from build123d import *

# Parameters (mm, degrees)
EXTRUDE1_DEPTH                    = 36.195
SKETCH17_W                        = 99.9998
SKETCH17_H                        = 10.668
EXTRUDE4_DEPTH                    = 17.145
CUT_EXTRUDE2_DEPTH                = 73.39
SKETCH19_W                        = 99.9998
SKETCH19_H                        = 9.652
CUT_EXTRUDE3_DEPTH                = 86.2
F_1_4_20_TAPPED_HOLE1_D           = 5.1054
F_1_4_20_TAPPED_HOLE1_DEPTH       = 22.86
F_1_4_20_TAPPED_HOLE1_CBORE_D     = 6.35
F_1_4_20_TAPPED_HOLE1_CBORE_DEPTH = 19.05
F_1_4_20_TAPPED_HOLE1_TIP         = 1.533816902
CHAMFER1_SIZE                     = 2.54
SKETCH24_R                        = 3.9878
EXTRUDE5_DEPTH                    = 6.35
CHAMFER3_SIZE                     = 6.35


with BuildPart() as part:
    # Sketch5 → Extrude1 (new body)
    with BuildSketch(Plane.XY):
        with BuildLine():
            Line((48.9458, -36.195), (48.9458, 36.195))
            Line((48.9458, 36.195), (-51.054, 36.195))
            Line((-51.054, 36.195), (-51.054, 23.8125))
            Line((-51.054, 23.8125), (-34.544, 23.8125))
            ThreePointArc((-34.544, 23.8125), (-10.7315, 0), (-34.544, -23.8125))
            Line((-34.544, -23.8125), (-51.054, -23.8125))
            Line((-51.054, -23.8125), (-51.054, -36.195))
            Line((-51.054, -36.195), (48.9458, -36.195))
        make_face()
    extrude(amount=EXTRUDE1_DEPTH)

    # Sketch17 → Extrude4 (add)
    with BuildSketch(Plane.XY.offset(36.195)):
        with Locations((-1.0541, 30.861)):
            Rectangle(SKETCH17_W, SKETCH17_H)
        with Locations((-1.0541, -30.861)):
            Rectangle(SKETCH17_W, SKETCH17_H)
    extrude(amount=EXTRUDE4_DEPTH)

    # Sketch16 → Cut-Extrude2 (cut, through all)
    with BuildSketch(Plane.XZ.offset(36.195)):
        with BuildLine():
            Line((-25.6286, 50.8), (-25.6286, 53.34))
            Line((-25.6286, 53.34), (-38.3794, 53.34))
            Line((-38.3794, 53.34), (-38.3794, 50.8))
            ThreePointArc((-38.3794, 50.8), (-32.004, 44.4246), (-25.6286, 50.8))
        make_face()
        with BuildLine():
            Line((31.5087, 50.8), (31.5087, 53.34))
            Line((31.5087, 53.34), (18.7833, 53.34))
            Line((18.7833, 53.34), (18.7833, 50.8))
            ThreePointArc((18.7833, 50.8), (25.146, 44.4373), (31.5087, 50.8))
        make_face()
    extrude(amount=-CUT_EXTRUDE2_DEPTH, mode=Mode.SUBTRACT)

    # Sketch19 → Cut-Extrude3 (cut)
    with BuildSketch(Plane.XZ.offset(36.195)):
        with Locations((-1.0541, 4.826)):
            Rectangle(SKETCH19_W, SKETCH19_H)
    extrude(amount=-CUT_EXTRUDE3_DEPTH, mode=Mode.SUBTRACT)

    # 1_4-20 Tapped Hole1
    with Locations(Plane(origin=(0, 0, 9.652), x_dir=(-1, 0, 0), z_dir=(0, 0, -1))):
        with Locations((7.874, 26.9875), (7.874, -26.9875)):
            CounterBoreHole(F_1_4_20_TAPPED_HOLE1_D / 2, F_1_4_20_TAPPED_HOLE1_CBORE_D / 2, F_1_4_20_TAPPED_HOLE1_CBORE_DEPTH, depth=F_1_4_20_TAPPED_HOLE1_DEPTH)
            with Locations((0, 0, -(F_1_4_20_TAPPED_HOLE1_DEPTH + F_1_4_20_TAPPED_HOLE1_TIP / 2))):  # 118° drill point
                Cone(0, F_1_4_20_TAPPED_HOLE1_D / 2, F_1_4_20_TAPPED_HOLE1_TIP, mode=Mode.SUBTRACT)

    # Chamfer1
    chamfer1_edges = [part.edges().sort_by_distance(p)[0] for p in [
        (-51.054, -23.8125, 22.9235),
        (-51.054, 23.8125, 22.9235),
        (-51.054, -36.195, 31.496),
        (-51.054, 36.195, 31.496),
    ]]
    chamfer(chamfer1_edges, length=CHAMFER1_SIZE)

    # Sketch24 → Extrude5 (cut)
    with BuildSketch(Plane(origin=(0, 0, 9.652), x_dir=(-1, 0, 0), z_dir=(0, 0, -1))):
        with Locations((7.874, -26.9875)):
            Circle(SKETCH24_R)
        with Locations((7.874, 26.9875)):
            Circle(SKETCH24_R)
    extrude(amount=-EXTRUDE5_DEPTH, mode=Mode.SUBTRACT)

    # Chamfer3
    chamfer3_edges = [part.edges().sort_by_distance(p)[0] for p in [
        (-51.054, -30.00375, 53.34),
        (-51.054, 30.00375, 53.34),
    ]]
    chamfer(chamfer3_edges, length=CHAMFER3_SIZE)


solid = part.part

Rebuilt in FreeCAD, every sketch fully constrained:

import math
import FreeCAD as App
import Part
import Sketcher

V = App.Vector
Q = App.Units.Quantity


def edges_at(feature, points):
    """Names of the edges that pass closest to the given points."""
    edges = feature.Shape.Edges
    near = lambda p: min(range(len(edges)), key=lambda i: edges[i].distToShape(Part.Vertex(*p))[0])
    return sorted({f"Edge{near(p) + 1}" for p in points})


def add_polygon(sketch, points):
    """Adds a closed chain of lines whose ends are joined by coincident constraints."""
    first, n = sketch.GeometryCount, len(points)
    for a, b in zip(points, points[1:] + points[:1]):
        sketch.addGeometry(Part.LineSegment(App.Vector(*a, 0), App.Vector(*b, 0)), False)
    for i in range(n):
        sketch.addConstraint(Sketcher.Constraint("Coincident", first + i, 2, first + (i + 1) % n, 1))

doc = App.newDocument("Part")
params = doc.addObject("Spreadsheet::Sheet", "Params")
for row, (alias, value) in enumerate([
    ("sketch1_radius", "0.9375 in"),
    ("sketch1_width", "0.65 in"),
    ("sketch1_height", "2.85 in"),
    ("sketch1_width2", "3.937 in"),
    ("pad1_length", "1.425 in"),
    ("sketch2_height", "0.42 in"),
    ("sketch2_width", "3.937 in"),
    ("pad2_length", "0.675 in"),
    ("sketch3_height", "0.1 in"),
    ("sketch3_radius", "0.251 in"),
    ("sketch4_height", "0.38 in"),
    ("sketch4_width", "3.937 in"),
    ("pocket2_length", "86.2 mm"),
    ("sketch5_diameter", "0.201 in"),
    ("hole_diameter", "0.201 in"),
    ("hole_depth", "0.9 in"),
    ("hole_cbore_diameter", "0.25 in"),
    ("hole_cbore_depth", "0.75 in"),
    ("chamfer_size", "0.1 in"),
    ("sketch6_diameter", "0.314 in"),
    ("pocket3_length", "0.25 in"),
    ("chamfer2_size", "0.25 in"),
], start=1):
    params.set(f"A{row}", alias)
    params.set(f"B{row}", "=" + value)
    params.setAlias(f"B{row}", alias)

body = doc.addObject("PartDesign::Body", "Body")

sketch1 = body.newObject("Sketcher::SketchObject", "Sketch")
sketch1.AttachmentSupport = (doc.getObject("XY_Plane"), [""])
sketch1.MapMode = "FlatFace"
sketch1.addGeometry([
    Part.LineSegment(V(49, -36, 0), V(49, 36, 0)),
    Part.LineSegment(V(49, 36, 0), V(-51, 36, 0)),
    Part.LineSegment(V(-51, 36, 0), V(-51, 24, 0)),
    Part.LineSegment(V(-51, 24, 0), V(-35, 24, 0)),
    Part.ArcOfCircle(Part.Circle(V(-35, 0, 0), V(0, 0, 1), 24), math.radians(-90), math.radians(90)),
    Part.LineSegment(V(-35, -24, 0), V(-51, -24, 0)),
    Part.LineSegment(V(-51, -24, 0), V(-51, -36, 0)),
    Part.LineSegment(V(-51, -36, 0), V(49, -36, 0)),
], False)
sketch1.addConstraint([
    Sketcher.Constraint("Coincident", 0, 2, 1, 1),
    Sketcher.Constraint("Coincident", 1, 2, 2, 1),
    Sketcher.Constraint("Coincident", 2, 2, 3, 1),
    Sketcher.Constraint("Tangent", 3, 2, 4, 2),
    Sketcher.Constraint("Tangent", 4, 1, 5, 1),
    Sketcher.Constraint("Coincident", 5, 2, 6, 1),
    Sketcher.Constraint("Coincident", 6, 2, 7, 1),
    Sketcher.Constraint("Coincident", 7, 2, 0, 1),
    Sketcher.Constraint("Vertical", 0),
    Sketcher.Constraint("Horizontal", 1),
    Sketcher.Constraint("Vertical", 2),
    Sketcher.Constraint("Horizontal", 3),
    Sketcher.Constraint("Horizontal", 5),
    Sketcher.Constraint("Vertical", 6),
    Sketcher.Constraint("Horizontal", 7),
    Sketcher.Constraint("Symmetric", 2, 2, 5, 2, -1),
    Sketcher.Constraint("Equal", 2, 6),
    Sketcher.Constraint("Radius", 4, Q("0.9375 in")),
    Sketcher.Constraint("DistanceX", 3, 1, 3, 2, Q("0.65 in")),
    Sketcher.Constraint("DistanceY", 0, 1, 0, 2, Q("2.85 in")),
    Sketcher.Constraint("DistanceX", 1, 2, 1, 1, Q("3.937 in")),
    Sketcher.Constraint("DistanceX", 4, 3, -1, 1, Q("1.36 in")),
])
sketch1.setExpression("Constraints[17]", "Params.sketch1_radius")
sketch1.setExpression("Constraints[18]", "Params.sketch1_width")
sketch1.setExpression("Constraints[19]", "Params.sketch1_height")
sketch1.setExpression("Constraints[20]", "Params.sketch1_width2")
pad1 = body.newObject("PartDesign::Pad", "Pad")
pad1.Profile = sketch1
pad1.setExpression("Length", "Params.pad1_length")

sketch2 = body.newObject("Sketcher::SketchObject", "Sketch001")
sketch2.AttachmentSupport = (doc.getObject("XY_Plane"), [""])
sketch2.MapMode = "FlatFace"
sketch2.AttachmentOffset = App.Placement(V(0, 0, 1.425 * 25.4), App.Rotation())
add_polygon(sketch2, [(-51, 36), (-51, 26), (49, 26), (49, 36)])
add_polygon(sketch2, [(-51, -26), (-51, -36), (49, -36), (49, -26)])
sketch2.addConstraint([
    Sketcher.Constraint("Vertical", 0),
    Sketcher.Constraint("Horizontal", 1),
    Sketcher.Constraint("Vertical", 2),
    Sketcher.Constraint("Horizontal", 3),
    Sketcher.Constraint("Vertical", 4),
    Sketcher.Constraint("Horizontal", 5),
    Sketcher.Constraint("Vertical", 6),
    Sketcher.Constraint("Horizontal", 7),
    Sketcher.Constraint("Symmetric", 3, 2, 4, 2, -1),
    Sketcher.Constraint("Symmetric", 1, 2, 6, 2, -1),
    Sketcher.Constraint("DistanceY", 0, 2, 0, 1, Q("0.42 in")),
    Sketcher.Constraint("DistanceX", 1, 1, 1, 2, Q("3.937 in")),
    Sketcher.Constraint("DistanceX", 0, 2, -1, 1, Q("2.01 in")),
    Sketcher.Constraint("DistanceY", 4, 2, 0, 2, Q("2.43 in")),
])
sketch2.setExpression("Constraints[18]", "Params.sketch2_height")
sketch2.setExpression("Constraints[19]", "Params.sketch2_width")
pad2 = body.newObject("PartDesign::Pad", "Pad001")
pad2.Profile = sketch2
pad2.setExpression("Length", "Params.pad2_length")

sketch3 = body.newObject("Sketcher::SketchObject", "Sketch002")
sketch3.AttachmentSupport = (doc.getObject("XZ_Plane"), [""])
sketch3.MapMode = "FlatFace"
sketch3.AttachmentOffset = App.Placement(V(0, 0, 1.425 * 25.4), App.Rotation())
sketch3.addGeometry([
    Part.LineSegment(V(-25.6, 50.8, 0), V(-25.6, 53.3, 0)),
    Part.LineSegment(V(-25.6, 53.3, 0), V(-38.4, 53.3, 0)),
    Part.LineSegment(V(-38.4, 53.3, 0), V(-38.4, 50.8, 0)),
    Part.ArcOfCircle(Part.Circle(V(-32, 50.8, 0), V(0, 0, 1), 6.4), math.radians(180), math.radians(360)),
    Part.LineSegment(V(31.5, 50.8, 0), V(31.5, 53.3, 0)),
    Part.LineSegment(V(31.5, 53.3, 0), V(18.8, 53.3, 0)),
    Part.LineSegment(V(18.8, 53.3, 0), V(18.8, 50.8, 0)),
    Part.ArcOfCircle(Part.Circle(V(25.1, 50.8, 0), V(0, 0, 1), 6.4), math.radians(180), math.radians(360)),
], False)
sketch3.addConstraint([
    Sketcher.Constraint("Coincident", 0, 2, 1, 1),
    Sketcher.Constraint("Coincident", 1, 2, 2, 1),
    Sketcher.Constraint("Tangent", 2, 2, 3, 1),
    Sketcher.Constraint("Tangent", 3, 2, 0, 1),
    Sketcher.Constraint("Coincident", 4, 2, 5, 1),
    Sketcher.Constraint("Coincident", 5, 2, 6, 1),
    Sketcher.Constraint("Tangent", 6, 2, 7, 1),
    Sketcher.Constraint("Tangent", 7, 2, 4, 1),
    Sketcher.Constraint("Vertical", 0),
    Sketcher.Constraint("Horizontal", 1),
    Sketcher.Constraint("Vertical", 2),
    Sketcher.Constraint("Vertical", 4),
    Sketcher.Constraint("Horizontal", 5),
    Sketcher.Constraint("Vertical", 6),
    Sketcher.Constraint("Horizontal", 3, 3, 7, 3),
    Sketcher.Constraint("Horizontal", 1, 2, 4, 2),
    Sketcher.Constraint("DistanceY", 0, 1, 0, 2, Q("0.1 in")),
    Sketcher.Constraint("DistanceY", -1, 1, 3, 3, Q("2 in")),
    Sketcher.Constraint("Radius", 3, Q("0.251 in")),
    Sketcher.Constraint("Radius", 7, Q("0.2505 in")),
    Sketcher.Constraint("DistanceX", 3, 3, -1, 1, Q("1.26 in")),
    Sketcher.Constraint("DistanceX", -1, 1, 7, 3, Q("0.99 in")),
])
sketch3.setExpression("Constraints[16]", "Params.sketch3_height")
sketch3.setExpression("Constraints[18]", "Params.sketch3_radius")
pocket1 = body.newObject("PartDesign::Pocket", "Pocket")
pocket1.Profile = sketch3
pocket1.Type = "ThroughAll"

sketch4 = body.newObject("Sketcher::SketchObject", "Sketch003")
sketch4.AttachmentSupport = (doc.getObject("XZ_Plane"), [""])
sketch4.MapMode = "FlatFace"
sketch4.AttachmentOffset = App.Placement(V(0, 0, 1.425 * 25.4), App.Rotation())
add_polygon(sketch4, [(-51, 10), (-51, 0), (49, 0), (49, 10)])
sketch4.addConstraint([
    Sketcher.Constraint("Vertical", 0),
    Sketcher.Constraint("Horizontal", 1),
    Sketcher.Constraint("Vertical", 2),
    Sketcher.Constraint("Horizontal", 3),
    Sketcher.Constraint("PointOnObject", 0, 2, -1),
    Sketcher.Constraint("DistanceY", 0, 2, 0, 1, Q("0.38 in")),
    Sketcher.Constraint("DistanceX", 1, 1, 1, 2, Q("3.937 in")),
    Sketcher.Constraint("DistanceX", 0, 2, -1, 1, Q("2.01 in")),
])
sketch4.setExpression("Constraints[9]", "Params.sketch4_height")
sketch4.setExpression("Constraints[10]", "Params.sketch4_width")
pocket2 = body.newObject("PartDesign::Pocket", "Pocket001")
pocket2.Profile = sketch4
pocket2.setExpression("Length", "Params.pocket2_length")

sketch5 = body.newObject("Sketcher::SketchObject", "Sketch004")
sketch5.AttachmentSupport = (doc.getObject("XY_Plane"), [""])
sketch5.MapMode = "FlatFace"
sketch5.AttachmentOffset = App.Placement(V(0, 0, 0.38 * 25.4), App.Rotation())
sketch5.addGeometry([
    Part.Circle(V(-7.9, 27, 0), V(0, 0, 1), 2.6),
    Part.Circle(V(-7.9, -27, 0), V(0, 0, 1), 2.6),
], False)
sketch5.addConstraint([
    Sketcher.Constraint("Equal", 0, 1),
    Sketcher.Constraint("Symmetric", 0, 3, 1, 3, -1),
    Sketcher.Constraint("Diameter", 0, Q("0.201 in")),
    Sketcher.Constraint("DistanceX", 0, 3, -1, 1, Q("0.31 in")),
    Sketcher.Constraint("DistanceY", -1, 1, 0, 3, Q("1.0625 in")),
])
sketch5.setExpression("Constraints[2]", "Params.sketch5_diameter")
doc.recompute()
hole = body.newObject("PartDesign::Hole", "Hole")
hole.Profile = sketch5
hole.ThreadType = "None"
hole.setExpression("Diameter", "Params.hole_diameter")
hole.DepthType = "Dimension"
hole.setExpression("Depth", "Params.hole_depth")
hole.DrillPoint = "Angled"
hole.DrillPointAngle = 118
hole.HoleCutType = "Counterbore"
hole.setExpression("HoleCutDiameter", "Params.hole_cbore_diameter")
hole.setExpression("HoleCutDepth", "Params.hole_cbore_depth")
hole.Reversed = True
doc.recompute()

chamfer = body.newObject("PartDesign::Chamfer", "Chamfer")
chamfer.Base = (hole, edges_at(hole, [
    (-51.054, -23.812, 22.924),
    (-51.054, 23.812, 22.924),
    (-51.054, -36.195, 31.496),
    (-51.054, 36.195, 31.496),
]))
chamfer.setExpression("Size", "Params.chamfer_size")

sketch6 = body.newObject("Sketcher::SketchObject", "Sketch005")
sketch6.AttachmentSupport = (doc.getObject("XY_Plane"), [""])
sketch6.MapMode = "FlatFace"
sketch6.AttachmentOffset = App.Placement(V(0, 0, 0.38 * 25.4), App.Rotation())
sketch6.addGeometry([
    Part.Circle(V(-7.9, -27, 0), V(0, 0, 1), 4),
    Part.Circle(V(-7.9, 27, 0), V(0, 0, 1), 4),
], False)
sketch6.addConstraint([
    Sketcher.Constraint("Equal", 0, 1),
    Sketcher.Constraint("Symmetric", 0, 3, 1, 3, -1),
    Sketcher.Constraint("Diameter", 0, Q("0.314 in")),
    Sketcher.Constraint("DistanceX", 0, 3, -1, 1, Q("0.31 in")),
    Sketcher.Constraint("DistanceY", 0, 3, -1, 1, Q("1.0625 in")),
])
sketch6.setExpression("Constraints[2]", "Params.sketch6_diameter")
pocket3 = body.newObject("PartDesign::Pocket", "Pocket002")
pocket3.Profile = sketch6
pocket3.setExpression("Length", "Params.pocket3_length")
pocket3.Reversed = True
doc.recompute()

chamfer2 = body.newObject("PartDesign::Chamfer", "Chamfer001")
chamfer2.Base = (pocket3, edges_at(pocket3, [(-51.054, -30.004, 53.34), (-51.054, 30.004, 53.34)]))
chamfer2.setExpression("Size", "Params.chamfer2_size")

doc.recompute()
